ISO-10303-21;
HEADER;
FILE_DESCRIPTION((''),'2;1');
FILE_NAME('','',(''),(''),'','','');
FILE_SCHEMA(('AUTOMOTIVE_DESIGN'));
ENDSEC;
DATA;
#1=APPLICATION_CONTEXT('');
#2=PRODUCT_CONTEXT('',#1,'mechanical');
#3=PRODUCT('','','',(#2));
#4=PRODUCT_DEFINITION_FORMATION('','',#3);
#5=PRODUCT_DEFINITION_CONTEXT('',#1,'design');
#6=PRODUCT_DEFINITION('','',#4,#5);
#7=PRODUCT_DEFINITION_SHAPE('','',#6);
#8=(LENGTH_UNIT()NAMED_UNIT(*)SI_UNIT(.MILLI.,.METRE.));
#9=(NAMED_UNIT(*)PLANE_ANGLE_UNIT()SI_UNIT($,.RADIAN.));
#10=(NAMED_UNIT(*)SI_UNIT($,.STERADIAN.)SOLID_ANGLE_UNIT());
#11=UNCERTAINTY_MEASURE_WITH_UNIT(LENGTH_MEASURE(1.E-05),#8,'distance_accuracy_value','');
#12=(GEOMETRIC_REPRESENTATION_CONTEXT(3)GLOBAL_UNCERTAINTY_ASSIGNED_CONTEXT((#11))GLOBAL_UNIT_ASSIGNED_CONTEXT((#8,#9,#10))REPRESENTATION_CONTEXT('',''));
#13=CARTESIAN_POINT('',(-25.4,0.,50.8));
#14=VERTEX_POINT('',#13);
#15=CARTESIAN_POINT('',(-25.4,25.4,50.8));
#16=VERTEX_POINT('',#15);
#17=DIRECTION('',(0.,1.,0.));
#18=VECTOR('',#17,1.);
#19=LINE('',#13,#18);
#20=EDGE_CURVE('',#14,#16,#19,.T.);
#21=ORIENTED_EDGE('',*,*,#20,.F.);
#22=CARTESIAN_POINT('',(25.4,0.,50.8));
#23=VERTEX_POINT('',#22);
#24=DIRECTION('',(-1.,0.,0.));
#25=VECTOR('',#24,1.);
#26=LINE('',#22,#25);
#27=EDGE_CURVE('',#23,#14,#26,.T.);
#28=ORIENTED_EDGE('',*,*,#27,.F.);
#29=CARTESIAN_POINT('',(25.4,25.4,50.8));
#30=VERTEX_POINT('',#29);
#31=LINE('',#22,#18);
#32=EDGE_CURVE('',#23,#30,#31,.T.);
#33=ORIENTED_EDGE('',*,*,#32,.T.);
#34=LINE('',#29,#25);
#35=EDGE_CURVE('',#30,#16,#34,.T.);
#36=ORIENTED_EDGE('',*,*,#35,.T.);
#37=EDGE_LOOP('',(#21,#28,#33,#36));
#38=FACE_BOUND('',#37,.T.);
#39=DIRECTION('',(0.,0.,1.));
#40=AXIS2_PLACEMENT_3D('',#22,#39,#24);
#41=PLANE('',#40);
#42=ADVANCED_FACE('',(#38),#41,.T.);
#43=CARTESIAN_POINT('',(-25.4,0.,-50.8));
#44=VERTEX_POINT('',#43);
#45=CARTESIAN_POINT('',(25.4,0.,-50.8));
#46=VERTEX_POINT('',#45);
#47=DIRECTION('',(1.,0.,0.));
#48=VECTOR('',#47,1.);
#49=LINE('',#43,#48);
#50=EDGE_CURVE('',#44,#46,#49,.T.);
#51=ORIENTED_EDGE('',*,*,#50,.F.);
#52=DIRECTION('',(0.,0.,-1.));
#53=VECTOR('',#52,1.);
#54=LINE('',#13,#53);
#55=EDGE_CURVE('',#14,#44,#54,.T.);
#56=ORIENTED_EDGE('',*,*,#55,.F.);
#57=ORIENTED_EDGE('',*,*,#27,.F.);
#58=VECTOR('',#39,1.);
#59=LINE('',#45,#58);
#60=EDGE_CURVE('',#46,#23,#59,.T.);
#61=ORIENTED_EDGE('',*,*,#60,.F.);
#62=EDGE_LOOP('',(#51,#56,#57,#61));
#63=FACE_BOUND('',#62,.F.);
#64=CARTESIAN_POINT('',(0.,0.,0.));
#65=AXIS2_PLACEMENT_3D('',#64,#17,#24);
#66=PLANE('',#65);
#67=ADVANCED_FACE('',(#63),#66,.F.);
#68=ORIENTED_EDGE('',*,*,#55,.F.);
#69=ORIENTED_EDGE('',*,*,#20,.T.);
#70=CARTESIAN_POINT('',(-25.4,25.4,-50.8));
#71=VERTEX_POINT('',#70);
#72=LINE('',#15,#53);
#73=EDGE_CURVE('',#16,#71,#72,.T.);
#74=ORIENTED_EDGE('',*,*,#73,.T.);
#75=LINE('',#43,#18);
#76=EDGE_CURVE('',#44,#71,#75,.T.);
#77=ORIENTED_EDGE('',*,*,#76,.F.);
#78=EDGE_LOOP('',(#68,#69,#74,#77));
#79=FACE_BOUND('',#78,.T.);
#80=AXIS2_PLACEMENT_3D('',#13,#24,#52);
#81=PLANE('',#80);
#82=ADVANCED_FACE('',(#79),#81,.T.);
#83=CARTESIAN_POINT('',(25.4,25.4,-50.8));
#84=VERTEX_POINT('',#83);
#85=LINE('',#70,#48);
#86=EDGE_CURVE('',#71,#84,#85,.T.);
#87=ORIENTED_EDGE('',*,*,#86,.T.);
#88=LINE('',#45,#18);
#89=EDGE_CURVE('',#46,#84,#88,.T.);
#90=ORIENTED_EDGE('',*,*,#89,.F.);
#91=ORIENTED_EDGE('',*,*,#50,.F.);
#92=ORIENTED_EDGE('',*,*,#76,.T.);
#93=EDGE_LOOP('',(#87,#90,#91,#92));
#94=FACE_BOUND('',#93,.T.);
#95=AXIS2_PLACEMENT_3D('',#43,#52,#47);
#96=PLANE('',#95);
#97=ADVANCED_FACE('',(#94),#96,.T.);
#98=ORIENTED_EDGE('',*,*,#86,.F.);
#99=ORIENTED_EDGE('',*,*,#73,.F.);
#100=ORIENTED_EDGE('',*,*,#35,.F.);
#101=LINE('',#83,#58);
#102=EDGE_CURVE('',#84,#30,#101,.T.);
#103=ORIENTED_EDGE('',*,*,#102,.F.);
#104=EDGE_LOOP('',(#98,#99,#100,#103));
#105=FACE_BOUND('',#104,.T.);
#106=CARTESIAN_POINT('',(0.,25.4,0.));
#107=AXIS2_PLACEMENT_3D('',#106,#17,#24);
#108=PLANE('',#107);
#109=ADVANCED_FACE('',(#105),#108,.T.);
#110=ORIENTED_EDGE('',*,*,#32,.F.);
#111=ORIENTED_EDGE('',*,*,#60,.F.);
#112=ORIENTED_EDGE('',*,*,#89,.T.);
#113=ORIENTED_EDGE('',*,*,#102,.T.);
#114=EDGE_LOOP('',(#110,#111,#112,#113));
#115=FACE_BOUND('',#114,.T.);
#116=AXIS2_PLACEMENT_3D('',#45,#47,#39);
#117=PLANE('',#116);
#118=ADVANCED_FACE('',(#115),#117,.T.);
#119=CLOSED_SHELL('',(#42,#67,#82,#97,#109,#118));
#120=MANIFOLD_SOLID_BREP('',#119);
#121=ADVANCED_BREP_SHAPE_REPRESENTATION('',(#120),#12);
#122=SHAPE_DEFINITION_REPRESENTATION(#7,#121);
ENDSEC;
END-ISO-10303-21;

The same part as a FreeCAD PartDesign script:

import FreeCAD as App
import Part
import Sketcher
Q = App.Units.Quantity


def add_polygon(sketch, points):
    """Adds a closed chain of lines whose ends are joined by coincident constraints."""
    first, n = sketch.GeometryCount, len(points)
    for a, b in zip(points, points[1:] + points[:1]):
        sketch.addGeometry(Part.LineSegment(App.Vector(*a, 0), App.Vector(*b, 0)), False)
    for i in range(n):
        sketch.addConstraint(Sketcher.Constraint("Coincident", first + i, 2, first + (i + 1) % n, 1))

doc = App.newDocument("Part")
body = doc.addObject("PartDesign::Body", "Body")

sketch1 = body.newObject("Sketcher::SketchObject", "Sketch")
sketch1.AttachmentSupport = (doc.getObject("XZ_Plane"), [""])
sketch1.MapMode = "FlatFace"
add_polygon(sketch1, [(-25.4, 50.8), (25.4, 50.8), (25.4, -50.8), (-25.4, -50.8)])
sketch1.addConstraint([
    Sketcher.Constraint("Horizontal", 0),
    Sketcher.Constraint("Vertical", 1),
    Sketcher.Constraint("Horizontal", 2),
    Sketcher.Constraint("Vertical", 3),
    Sketcher.Constraint("Symmetric", 0, 2, 2, 2, -1, 1),
    Sketcher.Constraint("DistanceX", 0, 1, 0, 2, Q("2 in")),
    Sketcher.Constraint("DistanceY", 1, 2, 1, 1, Q("4 in")),
])
pad1 = body.newObject("PartDesign::Pad", "Pad")
pad1.Profile = sketch1
pad1.Length = Q("1 in")
pad1.Reversed = True

doc.recompute()
